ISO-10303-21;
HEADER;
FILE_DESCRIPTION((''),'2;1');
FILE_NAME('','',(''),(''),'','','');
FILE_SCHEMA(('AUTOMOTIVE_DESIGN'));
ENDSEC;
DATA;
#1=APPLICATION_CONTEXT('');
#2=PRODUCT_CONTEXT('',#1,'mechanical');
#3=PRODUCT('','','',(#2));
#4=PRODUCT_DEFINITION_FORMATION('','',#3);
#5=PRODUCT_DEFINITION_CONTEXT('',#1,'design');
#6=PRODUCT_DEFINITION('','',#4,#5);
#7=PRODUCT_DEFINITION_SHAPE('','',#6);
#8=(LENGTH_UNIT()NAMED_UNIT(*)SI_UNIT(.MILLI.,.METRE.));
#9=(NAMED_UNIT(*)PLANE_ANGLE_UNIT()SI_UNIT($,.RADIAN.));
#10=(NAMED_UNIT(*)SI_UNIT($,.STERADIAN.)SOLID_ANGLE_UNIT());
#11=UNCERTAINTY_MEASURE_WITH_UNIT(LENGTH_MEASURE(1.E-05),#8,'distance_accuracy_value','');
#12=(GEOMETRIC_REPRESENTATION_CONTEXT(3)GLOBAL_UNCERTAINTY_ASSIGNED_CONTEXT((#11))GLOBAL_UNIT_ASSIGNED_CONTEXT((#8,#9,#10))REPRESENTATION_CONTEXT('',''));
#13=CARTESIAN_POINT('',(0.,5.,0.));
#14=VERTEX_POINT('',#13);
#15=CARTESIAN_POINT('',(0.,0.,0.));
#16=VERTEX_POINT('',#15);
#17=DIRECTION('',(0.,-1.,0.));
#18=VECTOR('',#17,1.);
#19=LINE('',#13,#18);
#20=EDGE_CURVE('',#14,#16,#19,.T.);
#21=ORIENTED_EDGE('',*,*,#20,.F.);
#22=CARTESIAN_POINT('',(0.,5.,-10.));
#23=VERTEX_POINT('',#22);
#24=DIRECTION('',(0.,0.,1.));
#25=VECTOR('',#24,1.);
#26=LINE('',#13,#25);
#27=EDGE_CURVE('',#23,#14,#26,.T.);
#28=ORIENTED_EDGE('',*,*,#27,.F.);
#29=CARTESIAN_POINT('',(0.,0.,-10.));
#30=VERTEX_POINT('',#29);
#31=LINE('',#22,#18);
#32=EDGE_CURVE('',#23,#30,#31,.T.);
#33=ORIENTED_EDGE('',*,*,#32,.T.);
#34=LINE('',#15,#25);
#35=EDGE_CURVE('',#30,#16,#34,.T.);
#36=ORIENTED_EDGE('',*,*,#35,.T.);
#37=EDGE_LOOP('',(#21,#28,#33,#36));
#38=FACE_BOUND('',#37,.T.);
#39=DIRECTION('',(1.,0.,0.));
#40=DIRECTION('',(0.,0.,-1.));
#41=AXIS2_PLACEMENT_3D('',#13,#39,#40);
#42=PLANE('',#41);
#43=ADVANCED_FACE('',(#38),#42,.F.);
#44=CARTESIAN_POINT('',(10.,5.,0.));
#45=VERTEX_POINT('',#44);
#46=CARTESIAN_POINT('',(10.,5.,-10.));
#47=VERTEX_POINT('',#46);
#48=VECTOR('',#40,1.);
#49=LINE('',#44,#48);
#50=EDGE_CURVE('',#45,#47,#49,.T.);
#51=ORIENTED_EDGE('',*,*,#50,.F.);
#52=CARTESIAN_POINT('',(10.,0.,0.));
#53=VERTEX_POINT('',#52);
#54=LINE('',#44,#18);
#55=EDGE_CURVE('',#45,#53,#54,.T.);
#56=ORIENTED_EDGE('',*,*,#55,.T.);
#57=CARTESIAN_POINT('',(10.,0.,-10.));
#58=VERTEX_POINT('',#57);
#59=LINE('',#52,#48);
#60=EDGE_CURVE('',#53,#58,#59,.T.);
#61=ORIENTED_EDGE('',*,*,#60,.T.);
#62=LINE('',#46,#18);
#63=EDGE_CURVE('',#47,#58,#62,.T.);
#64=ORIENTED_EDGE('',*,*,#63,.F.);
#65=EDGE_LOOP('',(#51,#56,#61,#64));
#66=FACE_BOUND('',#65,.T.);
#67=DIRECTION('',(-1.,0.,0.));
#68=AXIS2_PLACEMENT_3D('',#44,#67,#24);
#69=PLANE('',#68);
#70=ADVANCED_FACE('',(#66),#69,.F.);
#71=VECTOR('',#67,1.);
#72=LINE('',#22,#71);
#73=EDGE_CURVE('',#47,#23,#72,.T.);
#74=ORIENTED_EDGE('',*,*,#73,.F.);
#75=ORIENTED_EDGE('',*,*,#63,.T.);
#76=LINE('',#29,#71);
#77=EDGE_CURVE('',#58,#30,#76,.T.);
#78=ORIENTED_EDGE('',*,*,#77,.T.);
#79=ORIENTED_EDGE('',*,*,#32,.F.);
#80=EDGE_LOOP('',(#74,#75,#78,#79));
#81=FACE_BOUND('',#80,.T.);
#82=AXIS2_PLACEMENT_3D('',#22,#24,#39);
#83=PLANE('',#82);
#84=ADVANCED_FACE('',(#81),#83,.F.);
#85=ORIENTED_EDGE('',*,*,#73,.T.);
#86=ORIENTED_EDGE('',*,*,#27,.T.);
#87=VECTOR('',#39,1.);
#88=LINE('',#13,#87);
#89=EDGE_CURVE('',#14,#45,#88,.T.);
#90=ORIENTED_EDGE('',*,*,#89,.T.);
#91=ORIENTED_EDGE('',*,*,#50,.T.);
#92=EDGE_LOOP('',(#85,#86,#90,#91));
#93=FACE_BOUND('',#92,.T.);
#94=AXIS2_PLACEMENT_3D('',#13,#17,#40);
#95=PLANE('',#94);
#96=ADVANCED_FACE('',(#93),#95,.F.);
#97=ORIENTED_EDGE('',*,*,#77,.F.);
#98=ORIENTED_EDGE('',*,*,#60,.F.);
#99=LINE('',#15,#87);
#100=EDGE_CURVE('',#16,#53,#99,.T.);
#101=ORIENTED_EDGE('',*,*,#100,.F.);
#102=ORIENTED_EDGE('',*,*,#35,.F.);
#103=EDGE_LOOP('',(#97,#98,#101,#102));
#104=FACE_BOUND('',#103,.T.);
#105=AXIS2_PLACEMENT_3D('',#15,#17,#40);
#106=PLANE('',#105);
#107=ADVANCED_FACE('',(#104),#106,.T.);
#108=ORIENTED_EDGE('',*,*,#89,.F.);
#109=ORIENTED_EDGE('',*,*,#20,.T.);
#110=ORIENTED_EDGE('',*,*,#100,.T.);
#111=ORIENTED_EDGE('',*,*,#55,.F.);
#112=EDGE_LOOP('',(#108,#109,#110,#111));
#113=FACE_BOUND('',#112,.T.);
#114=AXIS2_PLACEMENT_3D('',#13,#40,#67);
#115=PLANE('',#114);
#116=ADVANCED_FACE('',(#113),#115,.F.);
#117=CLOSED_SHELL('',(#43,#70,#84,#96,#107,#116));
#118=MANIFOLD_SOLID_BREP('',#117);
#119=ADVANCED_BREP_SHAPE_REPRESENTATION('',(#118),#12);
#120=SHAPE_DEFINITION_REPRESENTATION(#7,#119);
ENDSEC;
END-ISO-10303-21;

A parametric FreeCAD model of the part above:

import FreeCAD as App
import Part
import Sketcher
from FreeCAD import Vector


def add_polygon(sketch, points):
    """Adds a closed chain of lines whose ends are joined by coincident constraints."""
    first, n = sketch.GeometryCount, len(points)
    for a, b in zip(points, points[1:] + points[:1]):
        sketch.addGeometry(Part.LineSegment(App.Vector(*a, 0), App.Vector(*b, 0)), False)
    for i in range(n):
        sketch.addConstraint(Sketcher.Constraint("Coincident", first + i, 2, first + (i + 1) % n, 1))

doc = App.newDocument("Part")
body = doc.addObject("PartDesign::Body", "Body")

sketch1 = doc.addObject("Sketcher::SketchObject", "Sketch")
body.addObject(sketch1)
sketch1.AttachmentSupport = (doc.XZ_Plane, [""])
sketch1.MapMode = "FlatFace"
add_polygon(sketch1, [(0, -10), (0, 0), (10, 0), (10, -10)])
sketch1.addConstraint([
    Sketcher.Constraint("Vertical", 0),
    Sketcher.Constraint("Horizontal", 1),
    Sketcher.Constraint("Vertical", 2),
    Sketcher.Constraint("Horizontal", 3),
    Sketcher.Constraint("Coincident", 0, 2, -1, 1),
    Sketcher.Constraint("Equal", 3, 0),
    Sketcher.Constraint("DistanceX", 1, 1, 1, 2, 10.0),
])
pad1 = doc.addObject("PartDesign::Pad", "Pad")
body.addObject(pad1)
pad1.Profile = sketch1
pad1.Length = 5
pad1.Reversed = True

doc.recompute()
